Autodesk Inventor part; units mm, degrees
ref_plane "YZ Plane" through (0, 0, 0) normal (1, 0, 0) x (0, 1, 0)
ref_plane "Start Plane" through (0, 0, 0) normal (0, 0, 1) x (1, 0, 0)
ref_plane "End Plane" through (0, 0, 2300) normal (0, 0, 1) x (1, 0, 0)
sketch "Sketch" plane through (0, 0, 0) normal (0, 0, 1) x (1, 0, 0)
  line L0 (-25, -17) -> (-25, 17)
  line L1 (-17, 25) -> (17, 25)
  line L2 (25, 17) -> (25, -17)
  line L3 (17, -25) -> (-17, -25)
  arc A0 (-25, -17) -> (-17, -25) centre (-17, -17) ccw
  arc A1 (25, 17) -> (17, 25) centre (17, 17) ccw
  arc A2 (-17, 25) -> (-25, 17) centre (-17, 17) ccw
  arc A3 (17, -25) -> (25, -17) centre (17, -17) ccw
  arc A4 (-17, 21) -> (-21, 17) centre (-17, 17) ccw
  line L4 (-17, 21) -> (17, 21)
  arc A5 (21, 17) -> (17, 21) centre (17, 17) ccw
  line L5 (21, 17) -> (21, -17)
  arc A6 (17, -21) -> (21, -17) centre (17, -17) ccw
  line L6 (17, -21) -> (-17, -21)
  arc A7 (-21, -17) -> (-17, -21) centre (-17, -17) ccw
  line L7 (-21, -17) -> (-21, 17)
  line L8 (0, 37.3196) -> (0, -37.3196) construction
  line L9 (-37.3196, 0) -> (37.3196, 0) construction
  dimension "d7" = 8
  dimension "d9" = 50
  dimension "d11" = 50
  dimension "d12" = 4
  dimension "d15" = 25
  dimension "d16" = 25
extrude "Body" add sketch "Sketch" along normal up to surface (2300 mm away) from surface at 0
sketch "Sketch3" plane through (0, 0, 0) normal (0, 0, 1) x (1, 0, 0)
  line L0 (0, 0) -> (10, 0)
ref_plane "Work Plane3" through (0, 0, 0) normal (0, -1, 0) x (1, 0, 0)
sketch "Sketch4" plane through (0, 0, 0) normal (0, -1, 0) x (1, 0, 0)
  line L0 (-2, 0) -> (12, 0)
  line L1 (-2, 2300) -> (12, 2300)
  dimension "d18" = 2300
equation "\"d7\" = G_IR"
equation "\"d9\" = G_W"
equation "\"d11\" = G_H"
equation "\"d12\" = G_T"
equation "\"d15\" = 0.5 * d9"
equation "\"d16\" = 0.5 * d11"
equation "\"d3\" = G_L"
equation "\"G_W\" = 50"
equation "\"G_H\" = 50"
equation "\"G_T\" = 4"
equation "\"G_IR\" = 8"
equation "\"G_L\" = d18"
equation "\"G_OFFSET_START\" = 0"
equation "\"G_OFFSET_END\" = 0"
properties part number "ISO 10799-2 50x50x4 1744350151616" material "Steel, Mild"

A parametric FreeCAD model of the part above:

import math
import FreeCAD as App
import Part
import Sketcher
from FreeCAD import Vector

doc = App.newDocument("Part")
params = doc.addObject("Spreadsheet::Sheet", "Params")
for row, (alias, value) in enumerate([
    ("sketch1_radius", "8 mm"),
    ("sketch1_radius2", "4 mm"),
    ("pad1_length", "2300 mm"),
], start=1):
    params.set(f"A{row}", alias)
    params.set(f"B{row}", "=" + value)
    params.setAlias(f"B{row}", alias)

body = doc.addObject("PartDesign::Body", "Body")

# Sketch on XY plane
sketch1 = doc.addObject("Sketcher::SketchObject", "Sketch")
body.addObject(sketch1)
sketch1.AttachmentSupport = (doc.XY_Plane, [""])
sketch1.MapMode = "FlatFace"
sketch1.addGeometry([
    Part.LineSegment(Vector(-25, 17, 0), Vector(-25, -17, 0)),  # 0
    Part.ArcOfCircle(Part.Circle(Vector(-17, -17, 0), Vector(0, 0, 1), 8), math.radians(180), math.radians(270)),  # 1
    Part.LineSegment(Vector(-17, -25, 0), Vector(17, -25, 0)),  # 2
    Part.ArcOfCircle(Part.Circle(Vector(17, -17, 0), Vector(0, 0, 1), 8), math.radians(-90), math.radians(0)),  # 3
    Part.LineSegment(Vector(25, -17, 0), Vector(25, 17, 0)),  # 4
    Part.ArcOfCircle(Part.Circle(Vector(17, 17, 0), Vector(0, 0, 1), 8), math.radians(0), math.radians(90)),  # 5
    Part.LineSegment(Vector(17, 25, 0), Vector(-17, 25, 0)),  # 6
    Part.ArcOfCircle(Part.Circle(Vector(-17, 17, 0), Vector(0, 0, 1), 8), math.radians(90), math.radians(180)),  # 7
    Part.ArcOfCircle(Part.Circle(Vector(-17, 17, 0), Vector(0, 0, 1), 4), math.radians(90), math.radians(180)),  # 8
    Part.LineSegment(Vector(-17, 21, 0), Vector(17, 21, 0)),  # 9
    Part.ArcOfCircle(Part.Circle(Vector(17, 17, 0), Vector(0, 0, 1), 4), math.radians(0), math.radians(90)),  # 10
    Part.LineSegment(Vector(21, 17, 0), Vector(21, -17, 0)),  # 11
    Part.ArcOfCircle(Part.Circle(Vector(17, -17, 0), Vector(0, 0, 1), 4), math.radians(-90), math.radians(0)),  # 12
    Part.LineSegment(Vector(17, -21, 0), Vector(-17, -21, 0)),  # 13
    Part.ArcOfCircle(Part.Circle(Vector(-17, -17, 0), Vector(0, 0, 1), 4), math.radians(180), math.radians(270)),  # 14
    Part.LineSegment(Vector(-21, -17, 0), Vector(-21, 17, 0)),  # 15
], False)
sketch1.addConstraint([
    Sketcher.Constraint("Tangent", 0, 2, 1, 1),
    Sketcher.Constraint("Tangent", 1, 2, 2, 1),
    Sketcher.Constraint("Tangent", 2, 2, 3, 1),
    Sketcher.Constraint("Tangent", 3, 2, 4, 1),
    Sketcher.Constraint("Tangent", 4, 2, 5, 1),
    Sketcher.Constraint("Tangent", 5, 2, 6, 1),
    Sketcher.Constraint("Tangent", 6, 2, 7, 1),
    Sketcher.Constraint("Tangent", 7, 2, 0, 1),
    Sketcher.Constraint("Tangent", 8, 1, 9, 1),
    Sketcher.Constraint("Tangent", 9, 2, 10, 2),
    Sketcher.Constraint("Tangent", 10, 1, 11, 1),
    Sketcher.Constraint("Tangent", 11, 2, 12, 2),
    Sketcher.Constraint("Tangent", 12, 1, 13, 1),
    Sketcher.Constraint("Tangent", 13, 2, 14, 2),
    Sketcher.Constraint("Tangent", 14, 1, 15, 1),
    Sketcher.Constraint("Tangent", 15, 2, 8, 2),
    Sketcher.Constraint("Vertical", 0),
    Sketcher.Constraint("Horizontal", 2),
    Sketcher.Constraint("Vertical", 4),
    Sketcher.Constraint("Horizontal", 6),
    Sketcher.Constraint("Horizontal", 9),
    Sketcher.Constraint("Vertical", 11),
    Sketcher.Constraint("Horizontal", 13),
    Sketcher.Constraint("Vertical", 15),
    Sketcher.Constraint("Coincident", 8, 3, 7, 3),
    Sketcher.Constraint("Coincident", 10, 3, 5, 3),
    Sketcher.Constraint("Coincident", 12, 3, 3, 3),
    Sketcher.Constraint("Equal", 1, 3),
    Sketcher.Constraint("Equal", 3, 5),
    Sketcher.Constraint("Equal", 5, 7),
    Sketcher.Constraint("Equal", 12, 14),
    Sketcher.Constraint("Symmetric", 1, 3, 5, 3, -1, 1),
    Sketcher.Constraint("Equal", 13, 0),
    Sketcher.Constraint("Radius", 1, 8.0),
    Sketcher.Constraint("Radius", 8, 4.0),
    Sketcher.Constraint("DistanceX", 0, 2, -1, 1, 25.0),
])
sketch1.setExpression("Constraints[33]", "Params.sketch1_radius")
sketch1.setExpression("Constraints[34]", "Params.sketch1_radius2")
pad1 = doc.addObject("PartDesign::Pad", "Pad")
body.addObject(pad1)
pad1.Profile = sketch1
pad1.setExpression("Length", "Params.pad1_length")

doc.recompute()
